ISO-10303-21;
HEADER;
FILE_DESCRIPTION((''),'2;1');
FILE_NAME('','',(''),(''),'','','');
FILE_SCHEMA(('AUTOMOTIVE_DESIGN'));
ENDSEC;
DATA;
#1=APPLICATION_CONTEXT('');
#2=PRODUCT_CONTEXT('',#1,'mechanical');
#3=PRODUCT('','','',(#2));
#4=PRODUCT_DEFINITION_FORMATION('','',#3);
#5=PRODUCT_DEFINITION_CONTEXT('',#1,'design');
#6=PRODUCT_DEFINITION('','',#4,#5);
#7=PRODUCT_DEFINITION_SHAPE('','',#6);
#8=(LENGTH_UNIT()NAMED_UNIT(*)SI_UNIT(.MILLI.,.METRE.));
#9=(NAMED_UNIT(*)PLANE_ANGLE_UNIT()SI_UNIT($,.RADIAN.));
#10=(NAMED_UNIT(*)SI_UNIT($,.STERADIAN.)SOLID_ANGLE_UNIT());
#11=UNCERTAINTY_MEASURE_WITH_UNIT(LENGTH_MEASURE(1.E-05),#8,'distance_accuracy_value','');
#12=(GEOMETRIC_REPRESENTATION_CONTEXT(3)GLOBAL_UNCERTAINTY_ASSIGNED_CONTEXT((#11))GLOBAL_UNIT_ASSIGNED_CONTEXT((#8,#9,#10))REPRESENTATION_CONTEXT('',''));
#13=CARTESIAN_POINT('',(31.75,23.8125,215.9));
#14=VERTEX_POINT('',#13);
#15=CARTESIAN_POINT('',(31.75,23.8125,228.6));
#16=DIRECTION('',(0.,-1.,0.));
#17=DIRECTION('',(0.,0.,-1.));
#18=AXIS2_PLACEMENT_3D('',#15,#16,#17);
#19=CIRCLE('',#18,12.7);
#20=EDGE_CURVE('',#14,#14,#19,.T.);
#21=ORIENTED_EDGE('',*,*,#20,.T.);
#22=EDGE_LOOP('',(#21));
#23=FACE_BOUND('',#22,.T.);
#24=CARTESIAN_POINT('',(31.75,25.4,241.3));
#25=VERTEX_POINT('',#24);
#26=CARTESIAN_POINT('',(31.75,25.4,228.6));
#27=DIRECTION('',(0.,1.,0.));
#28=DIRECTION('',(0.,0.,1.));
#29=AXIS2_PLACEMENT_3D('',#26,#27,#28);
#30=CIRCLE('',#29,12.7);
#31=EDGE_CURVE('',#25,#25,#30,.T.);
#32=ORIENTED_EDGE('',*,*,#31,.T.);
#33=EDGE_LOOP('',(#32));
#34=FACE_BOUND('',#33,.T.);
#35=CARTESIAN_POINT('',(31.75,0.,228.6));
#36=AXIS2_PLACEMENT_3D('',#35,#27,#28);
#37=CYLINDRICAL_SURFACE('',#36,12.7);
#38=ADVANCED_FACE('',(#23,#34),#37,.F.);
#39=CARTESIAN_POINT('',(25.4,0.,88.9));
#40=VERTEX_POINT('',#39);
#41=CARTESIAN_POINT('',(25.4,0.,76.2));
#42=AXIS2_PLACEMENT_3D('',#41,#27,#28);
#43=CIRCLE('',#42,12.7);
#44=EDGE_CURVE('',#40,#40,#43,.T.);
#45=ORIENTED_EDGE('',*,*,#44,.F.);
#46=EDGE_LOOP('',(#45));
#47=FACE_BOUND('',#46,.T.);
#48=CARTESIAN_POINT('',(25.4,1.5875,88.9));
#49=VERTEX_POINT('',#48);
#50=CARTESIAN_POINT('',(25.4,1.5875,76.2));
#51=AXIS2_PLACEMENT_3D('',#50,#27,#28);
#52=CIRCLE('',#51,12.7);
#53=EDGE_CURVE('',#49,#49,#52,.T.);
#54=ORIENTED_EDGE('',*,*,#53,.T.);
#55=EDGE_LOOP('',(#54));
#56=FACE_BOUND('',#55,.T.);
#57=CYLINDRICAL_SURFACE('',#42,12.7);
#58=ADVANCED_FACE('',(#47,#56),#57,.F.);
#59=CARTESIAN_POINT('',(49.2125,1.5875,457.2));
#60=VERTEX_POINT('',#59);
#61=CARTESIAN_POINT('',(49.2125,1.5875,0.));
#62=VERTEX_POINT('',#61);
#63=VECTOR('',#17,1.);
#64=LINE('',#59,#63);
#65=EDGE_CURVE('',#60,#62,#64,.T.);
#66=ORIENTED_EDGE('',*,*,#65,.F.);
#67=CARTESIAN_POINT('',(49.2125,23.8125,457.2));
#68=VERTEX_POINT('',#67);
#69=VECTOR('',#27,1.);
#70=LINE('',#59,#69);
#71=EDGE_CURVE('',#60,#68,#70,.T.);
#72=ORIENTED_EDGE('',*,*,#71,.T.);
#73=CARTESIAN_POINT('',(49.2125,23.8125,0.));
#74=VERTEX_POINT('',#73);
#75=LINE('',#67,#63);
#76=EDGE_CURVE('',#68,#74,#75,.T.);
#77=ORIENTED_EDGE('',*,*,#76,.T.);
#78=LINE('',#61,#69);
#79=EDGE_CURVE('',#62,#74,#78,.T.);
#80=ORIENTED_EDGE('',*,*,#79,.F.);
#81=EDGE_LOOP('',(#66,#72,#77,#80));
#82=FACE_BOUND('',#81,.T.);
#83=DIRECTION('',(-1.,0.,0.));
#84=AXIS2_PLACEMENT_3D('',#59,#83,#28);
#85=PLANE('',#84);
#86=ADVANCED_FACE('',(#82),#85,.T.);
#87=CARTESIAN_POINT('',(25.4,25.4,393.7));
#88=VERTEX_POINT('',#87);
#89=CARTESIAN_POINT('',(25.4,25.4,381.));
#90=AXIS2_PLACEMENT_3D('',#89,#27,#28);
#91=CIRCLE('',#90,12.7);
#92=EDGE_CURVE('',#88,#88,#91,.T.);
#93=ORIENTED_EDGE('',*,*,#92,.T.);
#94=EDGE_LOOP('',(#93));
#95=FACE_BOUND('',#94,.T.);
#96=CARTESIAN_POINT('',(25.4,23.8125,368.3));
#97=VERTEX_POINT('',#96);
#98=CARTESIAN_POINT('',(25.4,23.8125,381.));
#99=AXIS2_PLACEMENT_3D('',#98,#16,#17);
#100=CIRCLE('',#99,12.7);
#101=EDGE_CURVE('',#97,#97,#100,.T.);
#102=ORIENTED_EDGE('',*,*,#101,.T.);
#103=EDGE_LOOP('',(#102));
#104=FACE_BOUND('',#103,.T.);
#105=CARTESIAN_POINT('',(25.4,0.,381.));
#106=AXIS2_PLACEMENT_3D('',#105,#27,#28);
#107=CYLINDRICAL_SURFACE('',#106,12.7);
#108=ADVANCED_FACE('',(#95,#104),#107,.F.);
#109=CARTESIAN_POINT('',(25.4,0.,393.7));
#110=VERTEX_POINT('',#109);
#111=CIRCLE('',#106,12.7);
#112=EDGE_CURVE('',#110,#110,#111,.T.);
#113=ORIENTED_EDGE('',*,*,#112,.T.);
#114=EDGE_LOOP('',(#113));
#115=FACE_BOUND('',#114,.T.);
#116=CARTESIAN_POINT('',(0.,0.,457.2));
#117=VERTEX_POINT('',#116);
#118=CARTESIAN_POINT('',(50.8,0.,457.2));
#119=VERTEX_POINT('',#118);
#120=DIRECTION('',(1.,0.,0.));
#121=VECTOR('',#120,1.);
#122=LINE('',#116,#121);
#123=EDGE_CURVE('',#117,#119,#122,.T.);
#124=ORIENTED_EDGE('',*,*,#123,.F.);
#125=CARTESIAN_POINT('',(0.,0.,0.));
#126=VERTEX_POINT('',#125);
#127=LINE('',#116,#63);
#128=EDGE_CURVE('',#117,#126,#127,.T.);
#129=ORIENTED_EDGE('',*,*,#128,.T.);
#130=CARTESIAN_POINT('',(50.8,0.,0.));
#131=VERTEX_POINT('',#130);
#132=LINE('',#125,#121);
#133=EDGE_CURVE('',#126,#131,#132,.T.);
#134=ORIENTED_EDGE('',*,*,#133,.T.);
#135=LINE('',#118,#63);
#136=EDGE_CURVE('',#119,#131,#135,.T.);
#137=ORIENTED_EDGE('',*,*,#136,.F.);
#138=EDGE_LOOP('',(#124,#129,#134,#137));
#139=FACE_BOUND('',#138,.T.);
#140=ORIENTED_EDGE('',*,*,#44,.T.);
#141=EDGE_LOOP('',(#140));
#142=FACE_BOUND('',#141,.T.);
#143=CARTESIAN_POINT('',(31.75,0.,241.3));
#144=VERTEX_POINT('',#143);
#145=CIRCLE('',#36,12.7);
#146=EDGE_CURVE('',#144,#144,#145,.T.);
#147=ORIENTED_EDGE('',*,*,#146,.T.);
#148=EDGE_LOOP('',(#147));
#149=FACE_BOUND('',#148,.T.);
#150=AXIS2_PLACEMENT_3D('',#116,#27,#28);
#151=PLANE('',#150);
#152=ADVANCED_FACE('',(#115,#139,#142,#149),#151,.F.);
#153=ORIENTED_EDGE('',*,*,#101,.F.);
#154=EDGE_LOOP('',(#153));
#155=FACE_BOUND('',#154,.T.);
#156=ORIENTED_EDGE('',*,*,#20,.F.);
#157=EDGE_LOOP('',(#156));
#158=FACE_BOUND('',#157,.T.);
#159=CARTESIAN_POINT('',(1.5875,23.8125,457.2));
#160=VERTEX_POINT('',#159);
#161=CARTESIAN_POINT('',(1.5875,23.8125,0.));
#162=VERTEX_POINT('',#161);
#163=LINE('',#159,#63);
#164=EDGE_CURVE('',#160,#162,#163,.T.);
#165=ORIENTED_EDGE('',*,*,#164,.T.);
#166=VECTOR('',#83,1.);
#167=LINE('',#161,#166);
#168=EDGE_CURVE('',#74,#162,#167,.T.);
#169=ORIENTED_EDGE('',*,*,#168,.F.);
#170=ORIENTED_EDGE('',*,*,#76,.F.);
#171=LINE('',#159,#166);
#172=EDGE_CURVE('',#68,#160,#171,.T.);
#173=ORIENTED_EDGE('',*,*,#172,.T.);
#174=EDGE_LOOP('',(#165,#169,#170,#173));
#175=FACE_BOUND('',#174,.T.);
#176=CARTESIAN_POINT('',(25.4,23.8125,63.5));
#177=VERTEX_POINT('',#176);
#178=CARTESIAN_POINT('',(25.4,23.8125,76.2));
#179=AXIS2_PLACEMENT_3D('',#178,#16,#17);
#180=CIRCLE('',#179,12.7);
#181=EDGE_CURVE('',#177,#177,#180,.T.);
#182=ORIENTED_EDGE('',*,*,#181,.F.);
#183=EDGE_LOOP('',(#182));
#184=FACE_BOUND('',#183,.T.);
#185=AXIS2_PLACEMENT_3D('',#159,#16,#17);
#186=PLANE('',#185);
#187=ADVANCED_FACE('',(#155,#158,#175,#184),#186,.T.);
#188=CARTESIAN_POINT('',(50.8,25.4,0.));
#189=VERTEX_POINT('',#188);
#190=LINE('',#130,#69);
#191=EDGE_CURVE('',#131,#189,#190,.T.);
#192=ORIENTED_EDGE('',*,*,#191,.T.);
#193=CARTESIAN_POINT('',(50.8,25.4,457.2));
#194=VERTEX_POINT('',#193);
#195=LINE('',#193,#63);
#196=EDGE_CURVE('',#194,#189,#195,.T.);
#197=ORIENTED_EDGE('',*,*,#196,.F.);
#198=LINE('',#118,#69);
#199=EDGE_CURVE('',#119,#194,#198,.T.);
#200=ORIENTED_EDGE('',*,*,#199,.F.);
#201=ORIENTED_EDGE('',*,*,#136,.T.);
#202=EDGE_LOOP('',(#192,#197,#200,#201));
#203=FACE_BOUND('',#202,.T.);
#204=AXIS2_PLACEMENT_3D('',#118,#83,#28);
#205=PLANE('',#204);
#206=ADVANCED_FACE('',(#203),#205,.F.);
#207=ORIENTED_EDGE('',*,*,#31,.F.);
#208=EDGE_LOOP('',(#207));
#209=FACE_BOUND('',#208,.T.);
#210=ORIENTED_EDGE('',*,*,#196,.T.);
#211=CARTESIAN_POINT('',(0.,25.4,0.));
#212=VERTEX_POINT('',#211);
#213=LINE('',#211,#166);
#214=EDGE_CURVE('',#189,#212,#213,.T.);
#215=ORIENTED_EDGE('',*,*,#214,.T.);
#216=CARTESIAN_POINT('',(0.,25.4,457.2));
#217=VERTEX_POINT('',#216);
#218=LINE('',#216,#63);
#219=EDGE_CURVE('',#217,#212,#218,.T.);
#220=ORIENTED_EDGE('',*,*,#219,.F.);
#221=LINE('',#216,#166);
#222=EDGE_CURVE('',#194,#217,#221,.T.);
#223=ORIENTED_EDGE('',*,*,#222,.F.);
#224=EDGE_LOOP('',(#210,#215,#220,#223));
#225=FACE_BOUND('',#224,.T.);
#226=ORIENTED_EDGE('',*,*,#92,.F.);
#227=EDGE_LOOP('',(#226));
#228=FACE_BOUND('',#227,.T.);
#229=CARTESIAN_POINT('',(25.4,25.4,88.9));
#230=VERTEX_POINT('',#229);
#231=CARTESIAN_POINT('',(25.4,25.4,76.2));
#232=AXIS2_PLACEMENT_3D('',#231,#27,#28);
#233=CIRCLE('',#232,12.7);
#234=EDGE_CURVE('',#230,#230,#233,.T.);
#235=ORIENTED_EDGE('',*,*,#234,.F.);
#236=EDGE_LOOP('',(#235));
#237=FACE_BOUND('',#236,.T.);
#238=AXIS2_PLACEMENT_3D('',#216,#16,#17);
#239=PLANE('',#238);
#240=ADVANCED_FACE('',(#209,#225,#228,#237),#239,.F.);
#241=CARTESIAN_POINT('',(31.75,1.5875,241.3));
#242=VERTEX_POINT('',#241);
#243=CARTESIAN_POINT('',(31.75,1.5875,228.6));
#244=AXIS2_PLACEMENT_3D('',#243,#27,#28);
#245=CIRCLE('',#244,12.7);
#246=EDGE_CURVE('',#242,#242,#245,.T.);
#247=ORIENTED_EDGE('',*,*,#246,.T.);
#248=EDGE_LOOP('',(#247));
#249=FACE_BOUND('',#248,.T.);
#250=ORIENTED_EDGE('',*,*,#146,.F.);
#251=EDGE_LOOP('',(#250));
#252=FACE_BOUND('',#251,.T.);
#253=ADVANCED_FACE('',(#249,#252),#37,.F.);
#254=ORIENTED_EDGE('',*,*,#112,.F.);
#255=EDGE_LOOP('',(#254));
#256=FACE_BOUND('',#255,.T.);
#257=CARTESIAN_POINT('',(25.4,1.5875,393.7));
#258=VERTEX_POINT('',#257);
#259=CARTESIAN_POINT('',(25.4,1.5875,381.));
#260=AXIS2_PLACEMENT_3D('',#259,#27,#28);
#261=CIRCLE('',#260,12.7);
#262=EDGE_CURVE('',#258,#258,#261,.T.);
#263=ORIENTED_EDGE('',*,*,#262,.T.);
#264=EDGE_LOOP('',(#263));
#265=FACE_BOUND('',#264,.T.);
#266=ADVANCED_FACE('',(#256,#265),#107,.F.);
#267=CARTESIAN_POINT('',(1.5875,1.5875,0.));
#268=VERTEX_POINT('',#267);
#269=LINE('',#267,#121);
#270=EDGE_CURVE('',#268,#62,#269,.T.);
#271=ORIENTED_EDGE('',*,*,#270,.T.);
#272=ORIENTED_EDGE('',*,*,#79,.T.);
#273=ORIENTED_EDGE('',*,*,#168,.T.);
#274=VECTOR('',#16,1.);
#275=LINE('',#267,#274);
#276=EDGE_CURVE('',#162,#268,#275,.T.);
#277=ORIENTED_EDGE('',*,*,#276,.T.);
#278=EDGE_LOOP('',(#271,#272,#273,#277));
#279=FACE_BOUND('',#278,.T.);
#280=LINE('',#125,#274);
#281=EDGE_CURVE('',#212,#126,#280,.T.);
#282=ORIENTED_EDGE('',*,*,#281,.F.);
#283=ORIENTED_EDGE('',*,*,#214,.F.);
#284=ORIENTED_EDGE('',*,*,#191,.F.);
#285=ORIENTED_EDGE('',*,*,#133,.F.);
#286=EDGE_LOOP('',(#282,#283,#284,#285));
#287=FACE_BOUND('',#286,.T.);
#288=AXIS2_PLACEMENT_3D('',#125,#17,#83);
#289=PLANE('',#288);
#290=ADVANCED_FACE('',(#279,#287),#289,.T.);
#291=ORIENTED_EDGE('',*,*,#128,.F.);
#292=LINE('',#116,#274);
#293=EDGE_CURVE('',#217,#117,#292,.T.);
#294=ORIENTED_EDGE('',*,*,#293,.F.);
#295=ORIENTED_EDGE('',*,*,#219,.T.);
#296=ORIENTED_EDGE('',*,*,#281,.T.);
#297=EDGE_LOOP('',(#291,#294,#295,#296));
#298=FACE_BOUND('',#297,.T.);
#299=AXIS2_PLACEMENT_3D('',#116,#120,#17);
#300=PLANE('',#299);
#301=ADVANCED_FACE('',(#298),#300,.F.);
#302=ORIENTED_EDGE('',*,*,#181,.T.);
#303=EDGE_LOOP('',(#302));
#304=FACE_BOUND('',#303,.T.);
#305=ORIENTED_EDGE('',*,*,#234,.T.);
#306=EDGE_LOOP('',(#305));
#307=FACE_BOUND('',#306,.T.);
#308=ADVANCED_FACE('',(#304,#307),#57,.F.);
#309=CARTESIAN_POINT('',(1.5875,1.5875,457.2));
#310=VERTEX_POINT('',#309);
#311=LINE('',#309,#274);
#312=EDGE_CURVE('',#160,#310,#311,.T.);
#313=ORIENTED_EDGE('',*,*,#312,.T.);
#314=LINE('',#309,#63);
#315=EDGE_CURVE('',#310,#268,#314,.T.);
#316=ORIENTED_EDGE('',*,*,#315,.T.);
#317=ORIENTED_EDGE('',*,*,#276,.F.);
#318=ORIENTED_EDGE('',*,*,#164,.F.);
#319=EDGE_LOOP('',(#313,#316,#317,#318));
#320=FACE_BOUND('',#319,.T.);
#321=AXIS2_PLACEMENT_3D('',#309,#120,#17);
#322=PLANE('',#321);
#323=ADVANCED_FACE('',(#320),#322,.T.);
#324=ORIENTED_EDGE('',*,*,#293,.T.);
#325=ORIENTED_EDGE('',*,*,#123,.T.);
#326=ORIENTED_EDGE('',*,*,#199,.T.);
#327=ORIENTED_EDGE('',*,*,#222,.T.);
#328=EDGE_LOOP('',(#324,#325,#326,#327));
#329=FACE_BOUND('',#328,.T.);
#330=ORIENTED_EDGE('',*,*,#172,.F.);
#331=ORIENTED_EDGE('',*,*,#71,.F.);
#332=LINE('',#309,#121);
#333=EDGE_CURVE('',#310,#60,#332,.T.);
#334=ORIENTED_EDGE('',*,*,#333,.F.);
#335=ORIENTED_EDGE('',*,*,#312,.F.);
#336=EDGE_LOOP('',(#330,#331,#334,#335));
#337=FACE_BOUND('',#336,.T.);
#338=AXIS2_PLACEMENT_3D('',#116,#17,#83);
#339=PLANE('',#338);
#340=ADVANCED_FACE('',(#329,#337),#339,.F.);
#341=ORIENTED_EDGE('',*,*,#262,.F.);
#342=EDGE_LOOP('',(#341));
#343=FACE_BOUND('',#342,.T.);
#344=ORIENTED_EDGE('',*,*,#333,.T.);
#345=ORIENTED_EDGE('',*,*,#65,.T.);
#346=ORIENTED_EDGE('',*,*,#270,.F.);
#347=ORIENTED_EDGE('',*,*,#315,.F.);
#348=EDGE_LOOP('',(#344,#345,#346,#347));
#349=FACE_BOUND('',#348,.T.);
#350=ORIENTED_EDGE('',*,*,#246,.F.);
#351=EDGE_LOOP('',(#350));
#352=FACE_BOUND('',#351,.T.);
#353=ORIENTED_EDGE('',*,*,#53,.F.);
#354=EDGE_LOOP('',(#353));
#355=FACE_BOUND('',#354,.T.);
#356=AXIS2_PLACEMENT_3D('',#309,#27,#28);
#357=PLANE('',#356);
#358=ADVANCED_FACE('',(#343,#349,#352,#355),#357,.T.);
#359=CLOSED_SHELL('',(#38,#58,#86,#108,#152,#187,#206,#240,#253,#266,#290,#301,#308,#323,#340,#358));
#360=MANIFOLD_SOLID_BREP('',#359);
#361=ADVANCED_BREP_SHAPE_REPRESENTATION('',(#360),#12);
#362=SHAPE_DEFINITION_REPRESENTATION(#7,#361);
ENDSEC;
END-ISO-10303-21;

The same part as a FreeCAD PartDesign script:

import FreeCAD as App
import Part
import Sketcher
Q = App.Units.Quantity


def add_polygon(sketch, points):
    """Adds a closed chain of lines whose ends are joined by coincident constraints."""
    first, n = sketch.GeometryCount, len(points)
    for a, b in zip(points, points[1:] + points[:1]):
        sketch.addGeometry(Part.LineSegment(App.Vector(*a, 0), App.Vector(*b, 0)), False)
    for i in range(n):
        sketch.addConstraint(Sketcher.Constraint("Coincident", first + i, 2, first + (i + 1) % n, 1))

doc = App.newDocument("Part")
params = doc.addObject("Spreadsheet::Sheet", "Params")
for row, (alias, value) in enumerate([
    ("sketch1_width", "2 in"),
    ("sketch1_height", "1 in"),
    ("sketch1_width2", "1.875 in"),
    ("sketch1_height2", "0.875 in"),
    ("pad1_length", "18 in"),
    ("sketch2_diameter", "1 in"),
    ("pocket1_length", "1 in"),
    ("sketch3_diameter", "1 in"),
    ("pocket2_length", "1 in"),
    ("sketch4_diameter", "1 in"),
    ("pocket3_length", "1 in"),
], start=1):
    params.set(f"A{row}", alias)
    params.set(f"B{row}", "=" + value)
    params.setAlias(f"B{row}", alias)

body = doc.addObject("PartDesign::Body", "Body")

# Sketch on XY plane
sketch1 = body.newObject("Sketcher::SketchObject", "Sketch")
sketch1.AttachmentSupport = (doc.getObject("XY_Plane"), [""])
sketch1.MapMode = "FlatFace"
add_polygon(sketch1, [(0, 25.4), (0, 0), (50.8, 0), (50.8, 25.4)])  # lines 0-3
add_polygon(sketch1, [(49.2125, 1.5875), (1.5875, 1.5875), (1.5875, 23.8125), (49.2125, 23.8125)])  # lines 4-7
sketch1.addConstraint(Sketcher.Constraint("Vertical", 0))
sketch1.addConstraint(Sketcher.Constraint("Horizontal", 1))
sketch1.addConstraint(Sketcher.Constraint("Vertical", 2))
sketch1.addConstraint(Sketcher.Constraint("Horizontal", 3))
sketch1.addConstraint(Sketcher.Constraint("Horizontal", 4))
sketch1.addConstraint(Sketcher.Constraint("Vertical", 5))
sketch1.addConstraint(Sketcher.Constraint("Horizontal", 6))
sketch1.addConstraint(Sketcher.Constraint("Vertical", 7))
sketch1.addConstraint(Sketcher.Constraint("Coincident", 0, 2, -1, 1))
sketch1.addConstraint(Sketcher.Constraint("DistanceX", 1, 1, 1, 2, Q("2 in")))
sketch1.addConstraint(Sketcher.Constraint("DistanceY", 0, 2, 0, 1, Q("1 in")))
sketch1.addConstraint(Sketcher.Constraint("DistanceX", 4, 2, 4, 1, Q("1.875 in")))
sketch1.addConstraint(Sketcher.Constraint("DistanceY", 5, 1, 5, 2, Q("0.875 in")))
sketch1.addConstraint(Sketcher.Constraint("DistanceX", -1, 1, 4, 2, Q("0.0625 in")))
sketch1.addConstraint(Sketcher.Constraint("DistanceY", -1, 1, 4, 2, Q("0.0625 in")))
sketch1.setExpression("Constraints[17]", "Params.sketch1_width")
sketch1.setExpression("Constraints[18]", "Params.sketch1_height")
sketch1.setExpression("Constraints[19]", "Params.sketch1_width2")
sketch1.setExpression("Constraints[20]", "Params.sketch1_height2")
pad1 = body.newObject("PartDesign::Pad", "Pad")
pad1.Profile = sketch1
pad1.setExpression("Length", "Params.pad1_length")

# Sketch on XZ plane
sketch2 = body.newObject("Sketcher::SketchObject", "Sketch001")
sketch2.AttachmentSupport = (doc.getObject("XZ_Plane"), [""])
sketch2.MapMode = "FlatFace"
sketch2.AttachmentOffset = App.Placement(App.Vector(0, 0, -1 * 25.4), App.Rotation())
sketch2.addGeometry(Part.Circle(App.Vector(25.4, 381, 0), App.Vector(0, 0, 1), 12.7), False)
sketch2.addConstraint(Sketcher.Constraint("Diameter", 0, Q("1 in")))
sketch2.addConstraint(Sketcher.Constraint("DistanceX", -1, 1, 0, 3, Q("1 in")))
sketch2.addConstraint(Sketcher.Constraint("DistanceY", -1, 1, 0, 3, Q("15 in")))
sketch2.setExpression("Constraints[0]", "Params.sketch2_diameter")
pocket1 = body.newObject("PartDesign::Pocket", "Pocket")
pocket1.Profile = sketch2
pocket1.setExpression("Length", "Params.pocket1_length")
pocket1.Reversed = True

# Sketch on XZ plane
sketch3 = body.newObject("Sketcher::SketchObject", "Sketch002")
sketch3.AttachmentSupport = (doc.getObject("XZ_Plane"), [""])
sketch3.MapMode = "FlatFace"
sketch3.AttachmentOffset = App.Placement(App.Vector(0, 0, -1 * 25.4), App.Rotation())
sketch3.addGeometry(Part.Circle(App.Vector(25.4, 76.2, 0), App.Vector(0, 0, 1), 12.7), False)
sketch3.addConstraint(Sketcher.Constraint("Diameter", 0, Q("1 in")))
sketch3.addConstraint(Sketcher.Constraint("DistanceX", -1, 1, 0, 3, Q("1 in")))
sketch3.addConstraint(Sketcher.Constraint("DistanceY", -1, 1, 0, 3, Q("3 in")))
sketch3.setExpression("Constraints[0]", "Params.sketch3_diameter")
pocket2 = body.newObject("PartDesign::Pocket", "Pocket001")
pocket2.Profile = sketch3
pocket2.setExpression("Length", "Params.pocket2_length")
pocket2.Reversed = True

# Sketch on XZ plane
sketch4 = body.newObject("Sketcher::SketchObject", "Sketch003")
sketch4.AttachmentSupport = (doc.getObject("XZ_Plane"), [""])
sketch4.MapMode = "FlatFace"
sketch4.AttachmentOffset = App.Placement(App.Vector(0, 0, -1 * 25.4), App.Rotation())
sketch4.addGeometry(Part.Circle(App.Vector(31.75, 228.6, 0), App.Vector(0, 0, 1), 12.7), False)
sketch4.addConstraint(Sketcher.Constraint("Diameter", 0, Q("1 in")))
sketch4.addConstraint(Sketcher.Constraint("DistanceY", -1, 1, 0, 3, Q("9 in")))
sketch4.addConstraint(Sketcher.Constraint("DistanceX", -1, 1, 0, 3, Q("1.25 in")))
sketch4.setExpression("Constraints[0]", "Params.sketch4_diameter")
pocket3 = body.newObject("PartDesign::Pocket", "Pocket002")
pocket3.Profile = sketch4
pocket3.setExpression("Length", "Params.pocket3_length")
pocket3.Reversed = True

doc.recompute()
